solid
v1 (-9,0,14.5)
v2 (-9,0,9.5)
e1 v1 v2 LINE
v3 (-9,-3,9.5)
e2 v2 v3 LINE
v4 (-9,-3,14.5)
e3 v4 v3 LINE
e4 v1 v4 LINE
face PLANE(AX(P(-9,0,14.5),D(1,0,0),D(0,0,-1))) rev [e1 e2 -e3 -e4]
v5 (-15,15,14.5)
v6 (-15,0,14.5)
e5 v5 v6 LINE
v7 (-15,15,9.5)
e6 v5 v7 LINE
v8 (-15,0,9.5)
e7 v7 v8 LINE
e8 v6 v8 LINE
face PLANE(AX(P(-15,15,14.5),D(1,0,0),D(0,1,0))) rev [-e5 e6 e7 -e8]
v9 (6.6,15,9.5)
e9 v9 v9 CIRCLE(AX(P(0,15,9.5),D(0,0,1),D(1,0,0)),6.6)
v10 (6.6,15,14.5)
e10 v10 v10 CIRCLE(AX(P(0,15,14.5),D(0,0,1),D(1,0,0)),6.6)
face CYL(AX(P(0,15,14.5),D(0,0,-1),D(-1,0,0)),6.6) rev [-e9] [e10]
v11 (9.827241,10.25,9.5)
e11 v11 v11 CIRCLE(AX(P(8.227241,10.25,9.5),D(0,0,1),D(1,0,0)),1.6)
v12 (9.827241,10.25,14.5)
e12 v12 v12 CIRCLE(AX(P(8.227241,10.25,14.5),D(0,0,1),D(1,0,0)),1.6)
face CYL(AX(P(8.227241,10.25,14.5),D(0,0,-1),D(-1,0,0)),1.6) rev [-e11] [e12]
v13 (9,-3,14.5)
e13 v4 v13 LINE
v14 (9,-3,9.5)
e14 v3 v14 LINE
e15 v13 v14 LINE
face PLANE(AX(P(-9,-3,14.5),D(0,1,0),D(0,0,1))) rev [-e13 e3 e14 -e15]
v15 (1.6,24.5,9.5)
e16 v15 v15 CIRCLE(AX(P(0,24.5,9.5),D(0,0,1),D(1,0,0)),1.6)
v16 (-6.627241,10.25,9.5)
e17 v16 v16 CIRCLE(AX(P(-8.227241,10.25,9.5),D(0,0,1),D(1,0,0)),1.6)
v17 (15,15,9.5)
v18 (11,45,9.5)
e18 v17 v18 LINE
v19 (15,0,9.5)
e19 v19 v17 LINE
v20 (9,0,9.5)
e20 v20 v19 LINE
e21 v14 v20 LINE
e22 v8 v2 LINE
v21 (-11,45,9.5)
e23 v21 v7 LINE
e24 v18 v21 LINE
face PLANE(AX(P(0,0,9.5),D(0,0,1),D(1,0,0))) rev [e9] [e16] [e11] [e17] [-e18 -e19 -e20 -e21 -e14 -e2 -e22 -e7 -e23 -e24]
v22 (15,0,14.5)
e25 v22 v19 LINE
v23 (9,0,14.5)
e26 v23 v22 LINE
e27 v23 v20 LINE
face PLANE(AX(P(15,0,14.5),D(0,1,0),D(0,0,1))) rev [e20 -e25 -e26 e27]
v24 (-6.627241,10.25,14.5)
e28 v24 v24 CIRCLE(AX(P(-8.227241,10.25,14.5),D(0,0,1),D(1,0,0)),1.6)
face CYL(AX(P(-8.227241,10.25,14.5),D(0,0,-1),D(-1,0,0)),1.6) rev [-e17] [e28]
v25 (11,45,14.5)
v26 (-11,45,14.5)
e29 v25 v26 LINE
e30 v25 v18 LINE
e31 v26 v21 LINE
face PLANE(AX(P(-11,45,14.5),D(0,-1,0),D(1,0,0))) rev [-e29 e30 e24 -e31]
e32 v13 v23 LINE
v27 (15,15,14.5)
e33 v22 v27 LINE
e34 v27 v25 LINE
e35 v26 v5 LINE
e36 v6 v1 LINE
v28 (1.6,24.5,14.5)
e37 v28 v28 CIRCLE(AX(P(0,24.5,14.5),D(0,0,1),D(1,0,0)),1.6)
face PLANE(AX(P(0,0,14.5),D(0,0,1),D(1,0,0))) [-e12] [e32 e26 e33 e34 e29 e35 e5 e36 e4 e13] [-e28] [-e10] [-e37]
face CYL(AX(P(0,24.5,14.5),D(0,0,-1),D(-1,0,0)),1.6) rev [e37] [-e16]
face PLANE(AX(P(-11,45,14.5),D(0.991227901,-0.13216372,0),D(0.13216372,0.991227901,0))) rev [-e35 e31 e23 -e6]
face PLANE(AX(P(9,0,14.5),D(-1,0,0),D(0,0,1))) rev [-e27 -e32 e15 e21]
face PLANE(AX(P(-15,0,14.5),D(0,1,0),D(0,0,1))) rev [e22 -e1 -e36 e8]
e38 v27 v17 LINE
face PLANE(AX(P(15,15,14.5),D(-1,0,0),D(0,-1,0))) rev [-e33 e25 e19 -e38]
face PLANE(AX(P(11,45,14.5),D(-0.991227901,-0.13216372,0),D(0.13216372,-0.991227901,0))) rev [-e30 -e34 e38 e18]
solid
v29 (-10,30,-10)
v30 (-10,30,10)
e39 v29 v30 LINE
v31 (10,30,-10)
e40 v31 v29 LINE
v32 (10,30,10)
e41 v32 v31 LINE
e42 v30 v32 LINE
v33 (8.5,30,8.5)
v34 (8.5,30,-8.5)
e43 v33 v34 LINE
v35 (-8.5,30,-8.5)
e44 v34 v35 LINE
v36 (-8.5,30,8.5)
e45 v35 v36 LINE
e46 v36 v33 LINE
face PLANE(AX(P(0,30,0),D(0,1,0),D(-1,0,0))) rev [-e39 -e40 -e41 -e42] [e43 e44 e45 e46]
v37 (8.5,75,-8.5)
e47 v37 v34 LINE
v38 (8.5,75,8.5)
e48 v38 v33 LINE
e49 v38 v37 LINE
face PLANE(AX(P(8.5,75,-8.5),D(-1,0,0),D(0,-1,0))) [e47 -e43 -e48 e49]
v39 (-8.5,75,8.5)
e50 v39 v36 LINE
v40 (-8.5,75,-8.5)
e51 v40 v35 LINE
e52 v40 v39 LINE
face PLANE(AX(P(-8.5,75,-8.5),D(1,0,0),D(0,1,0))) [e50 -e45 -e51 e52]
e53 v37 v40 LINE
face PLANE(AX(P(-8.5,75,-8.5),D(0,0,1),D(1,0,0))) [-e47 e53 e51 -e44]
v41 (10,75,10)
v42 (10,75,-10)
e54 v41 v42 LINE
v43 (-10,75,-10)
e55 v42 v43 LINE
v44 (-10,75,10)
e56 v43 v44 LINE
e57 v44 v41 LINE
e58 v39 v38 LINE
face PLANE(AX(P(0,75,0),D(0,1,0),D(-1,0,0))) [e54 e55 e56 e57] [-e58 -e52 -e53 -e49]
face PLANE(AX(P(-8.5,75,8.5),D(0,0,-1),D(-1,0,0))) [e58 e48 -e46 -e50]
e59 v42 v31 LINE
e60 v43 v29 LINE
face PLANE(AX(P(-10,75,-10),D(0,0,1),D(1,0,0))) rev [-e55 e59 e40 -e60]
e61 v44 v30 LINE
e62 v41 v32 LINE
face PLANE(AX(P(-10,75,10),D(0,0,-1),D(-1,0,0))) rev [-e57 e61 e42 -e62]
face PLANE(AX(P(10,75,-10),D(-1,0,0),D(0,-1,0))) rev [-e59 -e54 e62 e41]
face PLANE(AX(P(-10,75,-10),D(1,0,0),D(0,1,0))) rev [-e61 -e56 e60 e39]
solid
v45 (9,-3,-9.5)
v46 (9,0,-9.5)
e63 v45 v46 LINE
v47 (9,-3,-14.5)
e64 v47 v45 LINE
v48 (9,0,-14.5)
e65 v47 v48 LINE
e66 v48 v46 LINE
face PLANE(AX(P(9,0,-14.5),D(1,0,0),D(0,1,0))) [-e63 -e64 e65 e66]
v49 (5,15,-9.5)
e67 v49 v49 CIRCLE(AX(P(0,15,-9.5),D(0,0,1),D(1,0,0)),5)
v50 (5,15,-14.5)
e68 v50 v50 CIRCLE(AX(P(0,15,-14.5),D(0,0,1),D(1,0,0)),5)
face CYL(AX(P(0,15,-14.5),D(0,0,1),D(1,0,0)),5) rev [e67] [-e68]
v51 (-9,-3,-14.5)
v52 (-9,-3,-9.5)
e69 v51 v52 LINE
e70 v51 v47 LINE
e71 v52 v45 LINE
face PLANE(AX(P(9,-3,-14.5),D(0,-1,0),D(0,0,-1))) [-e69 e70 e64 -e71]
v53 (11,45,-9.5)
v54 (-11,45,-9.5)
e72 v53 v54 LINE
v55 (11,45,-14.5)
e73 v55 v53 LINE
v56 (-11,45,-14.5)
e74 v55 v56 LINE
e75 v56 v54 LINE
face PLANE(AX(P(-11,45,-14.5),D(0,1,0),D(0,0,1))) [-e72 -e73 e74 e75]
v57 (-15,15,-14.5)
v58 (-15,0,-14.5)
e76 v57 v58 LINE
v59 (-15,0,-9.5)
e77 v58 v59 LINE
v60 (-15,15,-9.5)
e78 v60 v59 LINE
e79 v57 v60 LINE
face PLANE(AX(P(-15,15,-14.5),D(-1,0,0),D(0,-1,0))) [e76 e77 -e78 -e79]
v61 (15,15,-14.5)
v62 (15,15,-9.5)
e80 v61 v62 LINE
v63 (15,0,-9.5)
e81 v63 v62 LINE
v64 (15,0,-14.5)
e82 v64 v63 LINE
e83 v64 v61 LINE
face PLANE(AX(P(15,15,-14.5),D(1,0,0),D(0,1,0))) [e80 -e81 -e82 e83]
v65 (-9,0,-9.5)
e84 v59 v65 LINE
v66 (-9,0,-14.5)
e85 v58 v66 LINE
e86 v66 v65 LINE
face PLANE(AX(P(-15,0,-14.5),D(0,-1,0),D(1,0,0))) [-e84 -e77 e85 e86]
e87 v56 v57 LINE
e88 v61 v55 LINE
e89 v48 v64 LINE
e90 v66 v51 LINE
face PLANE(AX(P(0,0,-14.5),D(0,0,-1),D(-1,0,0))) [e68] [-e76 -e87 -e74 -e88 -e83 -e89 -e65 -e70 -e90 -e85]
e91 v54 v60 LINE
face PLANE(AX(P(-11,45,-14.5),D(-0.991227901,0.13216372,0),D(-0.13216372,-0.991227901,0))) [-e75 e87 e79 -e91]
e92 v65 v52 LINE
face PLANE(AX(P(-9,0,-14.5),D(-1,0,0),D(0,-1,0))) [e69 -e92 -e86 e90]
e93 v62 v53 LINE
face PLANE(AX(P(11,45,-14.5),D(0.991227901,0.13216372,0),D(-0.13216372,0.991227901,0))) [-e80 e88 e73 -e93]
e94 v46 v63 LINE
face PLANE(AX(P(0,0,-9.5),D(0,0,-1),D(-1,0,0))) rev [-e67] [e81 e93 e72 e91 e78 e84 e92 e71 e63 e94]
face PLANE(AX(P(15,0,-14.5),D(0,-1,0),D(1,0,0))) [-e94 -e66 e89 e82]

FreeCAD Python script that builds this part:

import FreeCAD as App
import Part
import Sketcher

doc = App.newDocument("Part")
body = doc.addObject("PartDesign::Body", "Body")

sketch1 = doc.addObject("Sketcher::SketchObject", "Sketch")
body.addObject(sketch1)
sketch1.AttachmentSupport = (doc.XY_Plane, [""])
sketch1.MapMode = "FlatFace"
sketch1.AttachmentOffset = App.Placement(App.Vector(0, 0, 9.5), App.Rotation())
sketch1.addGeometry([
    Part.LineSegment(App.Vector(-15, 0, 0), App.Vector(-9, 0, 0)),
    Part.LineSegment(App.Vector(-9, 0, 0), App.Vector(-9, -3, 0)),
    Part.LineSegment(App.Vector(-9, -3, 0), App.Vector(9, -3, 0)),
    Part.LineSegment(App.Vector(9, -3, 0), App.Vector(9, 0, 0)),
    Part.LineSegment(App.Vector(9, 0, 0), App.Vector(15, 0, 0)),
    Part.LineSegment(App.Vector(15, 0, 0), App.Vector(15, 15, 0)),
    Part.LineSegment(App.Vector(15, 15, 0), App.Vector(11, 45, 0)),
    Part.LineSegment(App.Vector(11, 45, 0), App.Vector(-11, 45, 0)),
    Part.LineSegment(App.Vector(-11, 45, 0), App.Vector(-15, 15, 0)),
    Part.LineSegment(App.Vector(-15, 15, 0), App.Vector(-15, 0, 0)),
    Part.Circle(App.Vector(-8.2, 10.2, 0), App.Vector(0, 0, 1), 1.6),
    Part.Circle(App.Vector(8.2, 10.2, 0), App.Vector(0, 0, 1), 1.6),
    Part.Circle(App.Vector(0, 15, 0), App.Vector(0, 0, 1), 6.6),
    Part.Circle(App.Vector(0, 24.5, 0), App.Vector(0, 0, 1), 1.6),
], False)
sketch1.addConstraint([
    Sketcher.Constraint("Coincident", 0, 2, 1, 1),
    Sketcher.Constraint("Coincident", 1, 2, 2, 1),
    Sketcher.Constraint("Coincident", 2, 2, 3, 1),
    Sketcher.Constraint("Coincident", 3, 2, 4, 1),
    Sketcher.Constraint("Coincident", 4, 2, 5, 1),
    Sketcher.Constraint("Coincident", 5, 2, 6, 1),
    Sketcher.Constraint("Coincident", 6, 2, 7, 1),
    Sketcher.Constraint("Coincident", 7, 2, 8, 1),
    Sketcher.Constraint("Coincident", 8, 2, 9, 1),
    Sketcher.Constraint("Coincident", 9, 2, 0, 1),
    Sketcher.Constraint("Horizontal", 0),
    Sketcher.Constraint("Vertical", 1),
    Sketcher.Constraint("Horizontal", 2),
    Sketcher.Constraint("Vertical", 3),
    Sketcher.Constraint("Horizontal", 4),
    Sketcher.Constraint("Vertical", 5),
    Sketcher.Constraint("Horizontal", 7),
    Sketcher.Constraint("Vertical", 9),
    Sketcher.Constraint("Equal", 10, 11),
    Sketcher.Constraint("Equal", 11, 13),
    Sketcher.Constraint("Symmetric", 0, 2, 3, 2, -1, 1),
    Sketcher.Constraint("Symmetric", 10, 3, 11, 3, -2),
    Sketcher.Constraint("Symmetric", 5, 2, 8, 2, -2),
    Sketcher.Constraint("PointOnObject", 12, 3, -2),
    Sketcher.Constraint("PointOnObject", 13, 3, -2),
    Sketcher.Constraint("PointOnObject", 0, 2, -1),
    Sketcher.Constraint("Horizontal", 12, 3, 5, 2),
    Sketcher.Constraint("Equal", 6, 8),
    Sketcher.Constraint("Diameter", 10, 3.2),
    Sketcher.Constraint("Diameter", 12, 13.2),
    Sketcher.Constraint("DistanceX", 0, 1, 0, 2, 6.0),
    Sketcher.Constraint("DistanceX", 2, 1, 2, 2, 18.0),
    Sketcher.Constraint("DistanceX", 7, 2, 7, 1, 22.0),
    Sketcher.Constraint("DistanceY", 1, 2, 1, 1, 3.0),
    Sketcher.Constraint("DistanceY", 5, 1, 5, 2, 15.0),
    Sketcher.Constraint("DistanceY", -1, 1, 6, 2, 45.0),
    Sketcher.Constraint("DistanceY", -1, 1, 13, 3, 24.5),
    Sketcher.Constraint("DistanceY", -1, 1, 10, 3, 10.25),
    Sketcher.Constraint("DistanceX", 10, 3, -1, 1, 8.227241),
])
pad1 = doc.addObject("PartDesign::Pad", "Pad")
body.addObject(pad1)
pad1.Profile = sketch1
pad1.Length = 5
body2 = doc.addObject("PartDesign::Body", "Body001")

sketch2 = doc.addObject("Sketcher::SketchObject", "Sketch001")
body2.addObject(sketch2)
sketch2.AttachmentSupport = (doc.getObject("XY_Plane001"), [""])
sketch2.MapMode = "FlatFace"
sketch2.AttachmentOffset = App.Placement(App.Vector(0, 0, -9.5), App.Rotation())
sketch2.addGeometry([
    Part.LineSegment(App.Vector(9, 0, 0), App.Vector(15, 0, 0)),
    Part.LineSegment(App.Vector(15, 0, 0), App.Vector(15, 15, 0)),
    Part.LineSegment(App.Vector(15, 15, 0), App.Vector(11, 45, 0)),
    Part.LineSegment(App.Vector(11, 45, 0), App.Vector(-11, 45, 0)),
    Part.LineSegment(App.Vector(-11, 45, 0), App.Vector(-15, 15, 0)),
    Part.LineSegment(App.Vector(-15, 15, 0), App.Vector(-15, 0, 0)),
    Part.LineSegment(App.Vector(-15, 0, 0), App.Vector(-9, 0, 0)),
    Part.LineSegment(App.Vector(-9, 0, 0), App.Vector(-9, -3, 0)),
    Part.LineSegment(App.Vector(-9, -3, 0), App.Vector(9, -3, 0)),
    Part.LineSegment(App.Vector(9, -3, 0), App.Vector(9, 0, 0)),
    Part.Circle(App.Vector(0, 15, 0), App.Vector(0, 0, 1), 5),
], False)
sketch2.addConstraint([
    Sketcher.Constraint("Coincident", 0, 2, 1, 1),
    Sketcher.Constraint("Coincident", 1, 2, 2, 1),
    Sketcher.Constraint("Coincident", 2, 2, 3, 1),
    Sketcher.Constraint("Coincident", 3, 2, 4, 1),
    Sketcher.Constraint("Coincident", 4, 2, 5, 1),
    Sketcher.Constraint("Coincident", 5, 2, 6, 1),
    Sketcher.Constraint("Coincident", 6, 2, 7, 1),
    Sketcher.Constraint("Coincident", 7, 2, 8, 1),
    Sketcher.Constraint("Coincident", 8, 2, 9, 1),
    Sketcher.Constraint("Coincident", 9, 2, 0, 1),
    Sketcher.Constraint("Horizontal", 0),
    Sketcher.Constraint("Vertical", 1),
    Sketcher.Constraint("Horizontal", 3),
    Sketcher.Constraint("Vertical", 5),
    Sketcher.Constraint("Horizontal", 6),
    Sketcher.Constraint("Vertical", 7),
    Sketcher.Constraint("Horizontal", 8),
    Sketcher.Constraint("Vertical", 9),
    Sketcher.Constraint("Symmetric", 0, 2, 5, 2, -1, 1),
    Sketcher.Constraint("Symmetric", 6, 2, 9, 2, -2),
    Sketcher.Constraint("PointOnObject", 10, 3, -2),
    Sketcher.Constraint("Horizontal", 10, 3, 1, 2),
    Sketcher.Constraint("Horizontal", 1, 2, 4, 2),
    Sketcher.Constraint("Equal", 2, 4),
    Sketcher.Constraint("Diameter", 10, 10.0),
    Sketcher.Constraint("DistanceX", 0, 1, 0, 2, 6.0),
    Sketcher.Constraint("DistanceX", 3, 2, 3, 1, 22.0),
    Sketcher.Constraint("DistanceX", 8, 1, 8, 2, 18.0),
    Sketcher.Constraint("DistanceY", 1, 1, 1, 2, 15.0),
    Sketcher.Constraint("DistanceY", 7, 2, 7, 1, 3.0),
    Sketcher.Constraint("DistanceY", -1, 1, 2, 2, 45.0),
])
pad2 = doc.addObject("PartDesign::Pad", "Pad001")
body2.addObject(pad2)
pad2.Profile = sketch2
pad2.Length = 5
pad2.Reversed = True
body3 = doc.addObject("PartDesign::Body", "Body002")

sketch3 = doc.addObject("Sketcher::SketchObject", "Sketch002")
body3.addObject(sketch3)
sketch3.AttachmentSupport = (doc.getObject("XZ_Plane002"), [""])
sketch3.MapMode = "FlatFace"
sketch3.AttachmentOffset = App.Placement(App.Vector(0, 0, -45), App.Rotation())
sketch3.addGeometry([
    Part.LineSegment(App.Vector(-10, -10, 0), App.Vector(-10, 10, 0)),
    Part.LineSegment(App.Vector(-10, 10, 0), App.Vector(10, 10, 0)),
    Part.LineSegment(App.Vector(10, 10, 0), App.Vector(10, -10, 0)),
    Part.LineSegment(App.Vector(10, -10, 0), App.Vector(-10, -10, 0)),
    Part.LineSegment(App.Vector(8, 8, 0), App.Vector(-8, 8, 0)),
    Part.LineSegment(App.Vector(-8, 8, 0), App.Vector(-8, -8, 0)),
    Part.LineSegment(App.Vector(-8, -8, 0), App.Vector(8, -8, 0)),
    Part.LineSegment(App.Vector(8, -8, 0), App.Vector(8, 8, 0)),
], False)
sketch3.addConstraint([
    Sketcher.Constraint("Coincident", 0, 2, 1, 1),
    Sketcher.Constraint("Coincident", 1, 2, 2, 1),
    Sketcher.Constraint("Coincident", 2, 2, 3, 1),
    Sketcher.Constraint("Coincident", 3, 2, 0, 1),
    Sketcher.Constraint("Coincident", 4, 2, 5, 1),
    Sketcher.Constraint("Coincident", 5, 2, 6, 1),
    Sketcher.Constraint("Coincident", 6, 2, 7, 1),
    Sketcher.Constraint("Coincident", 7, 2, 4, 1),
    Sketcher.Constraint("Vertical", 0),
    Sketcher.Constraint("Horizontal", 1),
    Sketcher.Constraint("Vertical", 2),
    Sketcher.Constraint("Horizontal", 3),
    Sketcher.Constraint("Horizontal", 4),
    Sketcher.Constraint("Vertical", 5),
    Sketcher.Constraint("Horizontal", 6),
    Sketcher.Constraint("Vertical", 7),
    Sketcher.Constraint("Symmetric", 0, 2, 2, 2, -1, 1),
    Sketcher.Constraint("Symmetric", 4, 2, 6, 2, -1, 1),
    Sketcher.Constraint("Equal", 3, 0),
    Sketcher.Constraint("Equal", 6, 5),
    Sketcher.Constraint("DistanceX", 1, 1, 1, 2, 20.0),
    Sketcher.Constraint("DistanceX", 4, 2, 4, 1, 17.0),
])
pad3 = doc.addObject("PartDesign::Pad", "Pad002")
body3.addObject(pad3)
pad3.Profile = sketch3
pad3.Type = "TwoLengths"
pad3.Length = 30
pad3.Length2 = 15
pad3.Reversed = True

doc.recompute()
